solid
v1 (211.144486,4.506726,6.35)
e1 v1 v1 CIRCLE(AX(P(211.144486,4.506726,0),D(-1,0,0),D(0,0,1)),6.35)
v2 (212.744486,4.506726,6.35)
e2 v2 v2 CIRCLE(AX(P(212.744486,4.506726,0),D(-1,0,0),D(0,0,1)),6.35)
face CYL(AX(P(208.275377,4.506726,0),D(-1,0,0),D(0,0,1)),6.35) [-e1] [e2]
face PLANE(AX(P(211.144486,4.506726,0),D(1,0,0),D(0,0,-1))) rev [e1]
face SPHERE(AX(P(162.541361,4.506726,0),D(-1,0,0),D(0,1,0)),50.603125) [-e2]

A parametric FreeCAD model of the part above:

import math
import FreeCAD as App
import Part
import Sketcher
from FreeCAD import Vector
Q = App.Units.Quantity

doc = App.newDocument("Part")
body = doc.addObject("PartDesign::Body", "Body")

sketch1 = doc.addObject("Sketcher::SketchObject", "Sketch")
body.addObject(sketch1)
sketch1.AttachmentSupport = (doc.XY_Plane, [""])
sketch1.MapMode = "FlatFace"
sketch1.addGeometry([
    Part.LineSegment(Vector(211.1, 10.9, 0), Vector(211.1, 4.5, 0)),
    Part.LineSegment(Vector(211.1, 4.5, 0), Vector(213.1, 4.5, 0)),
    Part.ArcOfCircle(Part.Circle(Vector(162.5, 4.5, 0), Vector(0, 0, 1), 50.6), math.radians(0), math.radians(7.21)),
    Part.LineSegment(Vector(212.7, 10.9, 0), Vector(211.1, 10.9, 0)),
], False)
sketch1.addGeometry(Part.LineSegment(Vector(162.5, 4.5, 0), Vector(213.1, 4.5, 0)), True)
sketch1.addConstraint([
    Sketcher.Constraint("Coincident", 0, 2, 1, 1),
    Sketcher.Constraint("Coincident", 1, 2, 2, 1),
    Sketcher.Constraint("Coincident", 2, 2, 3, 1),
    Sketcher.Constraint("Coincident", 3, 2, 0, 1),
    Sketcher.Constraint("Vertical", 0),
    Sketcher.Constraint("Horizontal", 1),
    Sketcher.Constraint("Horizontal", 3),
    Sketcher.Constraint("Horizontal", 4),
    Sketcher.Constraint("Coincident", 4, 1, 2, 3),
    Sketcher.Constraint("Coincident", 4, 2, 1, 2),
    Sketcher.Constraint("DistanceX", 1, 1, 1, 2, Q("2 mm")),
    Sketcher.Constraint("DistanceX", 3, 2, 3, 1, Q("1.6 mm")),
    Sketcher.Constraint("DistanceY", 0, 2, 0, 1, Q("6.35 mm")),
    Sketcher.Constraint("DistanceX", -1, 1, 2, 3, Q("162.541361 mm")),
    Sketcher.Constraint("DistanceY", -1, 1, 2, 3, Q("4.506726 mm")),
])
revolution = doc.addObject("PartDesign::Revolution", "Revolution")
body.addObject(revolution)
revolution.Profile = sketch1
revolution.ReferenceAxis = (sketch1, ["Axis0"])
revolution.Angle = 360

doc.recompute()
